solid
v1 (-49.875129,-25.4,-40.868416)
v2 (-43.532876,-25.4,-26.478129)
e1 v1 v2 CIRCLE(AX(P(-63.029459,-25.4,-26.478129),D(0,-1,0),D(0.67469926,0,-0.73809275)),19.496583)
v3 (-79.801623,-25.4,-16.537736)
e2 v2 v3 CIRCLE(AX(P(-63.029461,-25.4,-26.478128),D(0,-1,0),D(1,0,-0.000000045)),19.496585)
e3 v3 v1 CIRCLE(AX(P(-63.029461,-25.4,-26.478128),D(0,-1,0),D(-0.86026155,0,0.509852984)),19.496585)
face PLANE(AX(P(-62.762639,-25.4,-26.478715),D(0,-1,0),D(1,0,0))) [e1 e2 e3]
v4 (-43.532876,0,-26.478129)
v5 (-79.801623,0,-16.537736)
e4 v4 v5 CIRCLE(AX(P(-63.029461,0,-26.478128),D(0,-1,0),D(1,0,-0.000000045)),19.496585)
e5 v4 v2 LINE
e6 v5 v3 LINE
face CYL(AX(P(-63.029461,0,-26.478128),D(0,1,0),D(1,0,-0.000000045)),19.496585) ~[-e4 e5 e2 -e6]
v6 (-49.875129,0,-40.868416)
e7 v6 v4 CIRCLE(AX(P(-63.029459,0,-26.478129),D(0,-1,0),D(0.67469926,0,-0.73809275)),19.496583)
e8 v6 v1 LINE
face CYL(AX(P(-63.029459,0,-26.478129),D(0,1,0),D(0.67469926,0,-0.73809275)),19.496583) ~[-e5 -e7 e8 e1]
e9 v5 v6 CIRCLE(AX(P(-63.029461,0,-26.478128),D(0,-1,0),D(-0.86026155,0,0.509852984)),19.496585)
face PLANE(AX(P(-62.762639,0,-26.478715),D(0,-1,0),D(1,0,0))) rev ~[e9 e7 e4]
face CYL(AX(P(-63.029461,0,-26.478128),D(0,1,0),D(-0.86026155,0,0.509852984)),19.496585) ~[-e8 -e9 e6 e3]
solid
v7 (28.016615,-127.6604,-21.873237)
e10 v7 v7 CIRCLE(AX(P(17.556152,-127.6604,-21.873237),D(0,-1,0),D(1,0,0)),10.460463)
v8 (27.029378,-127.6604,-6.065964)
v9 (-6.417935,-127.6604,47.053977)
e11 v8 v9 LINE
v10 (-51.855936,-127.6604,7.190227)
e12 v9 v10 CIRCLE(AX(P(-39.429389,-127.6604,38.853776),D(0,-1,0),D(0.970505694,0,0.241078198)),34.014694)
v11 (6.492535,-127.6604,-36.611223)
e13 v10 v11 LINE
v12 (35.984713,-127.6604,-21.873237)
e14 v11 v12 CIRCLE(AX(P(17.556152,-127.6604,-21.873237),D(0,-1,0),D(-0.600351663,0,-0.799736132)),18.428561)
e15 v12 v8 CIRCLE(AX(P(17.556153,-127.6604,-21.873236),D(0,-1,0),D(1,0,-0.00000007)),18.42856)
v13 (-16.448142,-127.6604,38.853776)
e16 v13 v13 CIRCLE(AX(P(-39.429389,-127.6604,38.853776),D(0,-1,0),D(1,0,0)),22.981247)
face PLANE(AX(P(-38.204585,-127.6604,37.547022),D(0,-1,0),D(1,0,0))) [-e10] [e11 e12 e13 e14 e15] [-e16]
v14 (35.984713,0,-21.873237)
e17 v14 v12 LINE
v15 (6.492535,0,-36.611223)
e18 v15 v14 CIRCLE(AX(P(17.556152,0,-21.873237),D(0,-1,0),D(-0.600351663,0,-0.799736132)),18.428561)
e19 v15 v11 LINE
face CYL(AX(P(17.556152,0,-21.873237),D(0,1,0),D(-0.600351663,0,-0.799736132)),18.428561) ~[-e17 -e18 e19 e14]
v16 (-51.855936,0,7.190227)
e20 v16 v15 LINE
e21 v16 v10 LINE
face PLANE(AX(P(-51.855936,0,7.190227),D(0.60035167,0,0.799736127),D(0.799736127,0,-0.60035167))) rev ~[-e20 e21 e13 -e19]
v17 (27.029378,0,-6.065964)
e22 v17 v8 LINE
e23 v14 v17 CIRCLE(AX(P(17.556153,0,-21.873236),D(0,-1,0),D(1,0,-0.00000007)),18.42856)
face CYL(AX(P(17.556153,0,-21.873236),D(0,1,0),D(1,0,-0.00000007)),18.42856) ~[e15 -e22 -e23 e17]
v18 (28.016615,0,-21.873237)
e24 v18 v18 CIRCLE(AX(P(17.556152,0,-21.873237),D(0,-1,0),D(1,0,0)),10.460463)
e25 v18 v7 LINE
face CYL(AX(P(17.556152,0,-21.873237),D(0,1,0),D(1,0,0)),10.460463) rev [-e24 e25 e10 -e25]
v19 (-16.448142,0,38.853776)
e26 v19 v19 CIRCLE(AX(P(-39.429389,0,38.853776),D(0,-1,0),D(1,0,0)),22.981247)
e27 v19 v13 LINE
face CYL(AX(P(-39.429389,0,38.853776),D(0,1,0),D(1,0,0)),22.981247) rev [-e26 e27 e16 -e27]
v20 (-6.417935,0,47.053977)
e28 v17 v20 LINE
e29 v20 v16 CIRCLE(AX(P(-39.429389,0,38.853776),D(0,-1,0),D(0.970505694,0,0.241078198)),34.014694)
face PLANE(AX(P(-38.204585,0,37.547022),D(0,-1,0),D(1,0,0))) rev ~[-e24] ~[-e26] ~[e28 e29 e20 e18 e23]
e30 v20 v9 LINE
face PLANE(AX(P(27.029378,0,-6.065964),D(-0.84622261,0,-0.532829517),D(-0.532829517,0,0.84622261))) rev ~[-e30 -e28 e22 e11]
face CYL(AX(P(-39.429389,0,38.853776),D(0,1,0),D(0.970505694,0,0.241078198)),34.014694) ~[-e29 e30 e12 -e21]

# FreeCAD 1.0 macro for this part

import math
import FreeCAD as App
import Part
import Sketcher

V = App.Vector
Q = App.Units.Quantity

doc = App.newDocument("Part")
body = doc.addObject("PartDesign::Body", "Body")

# Sketch on XZ plane
sketch1 = doc.addObject("Sketcher::SketchObject", "Sketch")
body.addObject(sketch1)
sketch1.AttachmentSupport = (doc.XZ_Plane, [""])
sketch1.MapMode = "FlatFace"
sketch1.addGeometry(Part.ArcOfCircle(Part.Circle(V(-39, 39, 0), V(0, 0, 1), 34), math.radians(14), math.radians(249)), False)
sketch1.addGeometry(Part.LineSegment(V(-52, 7, 0), V(6, -37, 0)), False)
sketch1.addGeometry(Part.ArcOfCircle(Part.Circle(V(18, -22, 0), V(0, 0, 1), 18), math.radians(-127), math.radians(0)), False)
sketch1.addGeometry(Part.ArcOfCircle(Part.Circle(V(18, -22, 0), V(0, 0, 1), 18), math.radians(0), math.radians(59)), False)
sketch1.addGeometry(Part.LineSegment(V(27, -6, 0), V(-6, 47, 0)), False)
sketch1.addGeometry(Part.Circle(V(18, -22, 0), V(0, 0, 1), 10), False)
sketch1.addGeometry(Part.Circle(V(-39, 39, 0), V(0, 0, 1), 23), False)
sketch1.addConstraint(Sketcher.Constraint("Coincident", 0, 2, 1, 1))
sketch1.addConstraint(Sketcher.Constraint("Tangent", 1, 2, 2, 1))
sketch1.addConstraint(Sketcher.Constraint("Tangent", 2, 2, 3, 1))
sketch1.addConstraint(Sketcher.Constraint("Coincident", 3, 2, 4, 1))
sketch1.addConstraint(Sketcher.Constraint("Coincident", 4, 2, 0, 1))
sketch1.addConstraint(Sketcher.Constraint("Coincident", 5, 3, 2, 3))
sketch1.addConstraint(Sketcher.Constraint("Coincident", 6, 3, 0, 3))
sketch1.addConstraint(Sketcher.Constraint("Equal", 2, 3))
sketch1.addConstraint(Sketcher.Constraint("Horizontal", 5, 3, 2, 2))
sketch1.addConstraint(Sketcher.Constraint("Radius", 2, Q("18.428561 mm")))
sketch1.addConstraint(Sketcher.Constraint("Diameter", 5, Q("20.920926 mm")))
sketch1.addConstraint(Sketcher.Constraint("Diameter", 6, Q("45.962494 mm")))
sketch1.addConstraint(Sketcher.Constraint("Radius", 0, Q("34.014694 mm")))
sketch1.addConstraint(Sketcher.Constraint("DistanceY", 1, 2, 0, 3, Q("75.464999 mm")))
sketch1.addConstraint(Sketcher.Constraint("DistanceY", 6, 3, 4, 2, Q("8.200201 mm")))
sketch1.addConstraint(Sketcher.Constraint("DistanceX", 0, 2, 4, 2, Q("45.438001 mm")))
sketch1.addConstraint(Sketcher.Constraint("Distance", 4, Q("62.773011 mm")))
sketch1.addConstraint(Sketcher.Constraint("DistanceX", 0, 3, -1, 1, Q("39.429389 mm")))
sketch1.addConstraint(Sketcher.Constraint("DistanceX", -1, 1, 3, 2, Q("27.029378 mm")))
sketch1.addConstraint(Sketcher.Constraint("DistanceY", -1, 1, 0, 3, Q("38.853776 mm")))
pad1 = doc.addObject("PartDesign::Pad", "Pad")
body.addObject(pad1)
pad1.Profile = sketch1
pad1.Length = Q("5.026 in")
body2 = doc.addObject("PartDesign::Body", "Body001")

# Sketch on XZ plane
sketch2 = doc.addObject("Sketcher::SketchObject", "Sketch001")
body2.addObject(sketch2)
sketch2.AttachmentSupport = (doc.getObject("XZ_Plane001"), [""])
sketch2.MapMode = "FlatFace"
sketch2.addGeometry(Part.ArcOfCircle(Part.Circle(V(-63, -26, 0), V(0, 0, 1), 19), math.radians(-48), math.radians(0)), False)
sketch2.addGeometry(Part.ArcOfCircle(Part.Circle(V(-63, -26, 0), V(0, 0, 1), 19), math.radians(0), math.radians(149)), False)
sketch2.addGeometry(Part.ArcOfCircle(Part.Circle(V(-63, -26, 0), V(0, 0, 1), 19), math.radians(149), math.radians(312)), False)
sketch2.addConstraint(Sketcher.Constraint("Tangent", 0, 2, 1, 1))
sketch2.addConstraint(Sketcher.Constraint("Tangent", 1, 2, 2, 1))
sketch2.addConstraint(Sketcher.Constraint("Tangent", 2, 2, 0, 1))
sketch2.addConstraint(Sketcher.Constraint("Horizontal", 2, 3, 0, 2))
sketch2.addConstraint(Sketcher.Constraint("Radius", 0, Q("19.496583 mm")))
sketch2.addConstraint(Sketcher.Constraint("DistanceX", 0, 3, -1, 1, Q("63.029459 mm")))
sketch2.addConstraint(Sketcher.Constraint("DistanceY", 0, 3, -1, 1, Q("26.478129 mm")))
sketch2.addConstraint(Sketcher.Constraint("DistanceX", 2, 2, -1, 1, Q("49.875129 mm")))
sketch2.addConstraint(Sketcher.Constraint("DistanceY", 2, 2, 1, 2, Q("24.33068 mm")))
pad2 = doc.addObject("PartDesign::Pad", "Pad001")
body2.addObject(pad2)
pad2.Profile = sketch2
pad2.Length = Q("1 in")

doc.recompute()
